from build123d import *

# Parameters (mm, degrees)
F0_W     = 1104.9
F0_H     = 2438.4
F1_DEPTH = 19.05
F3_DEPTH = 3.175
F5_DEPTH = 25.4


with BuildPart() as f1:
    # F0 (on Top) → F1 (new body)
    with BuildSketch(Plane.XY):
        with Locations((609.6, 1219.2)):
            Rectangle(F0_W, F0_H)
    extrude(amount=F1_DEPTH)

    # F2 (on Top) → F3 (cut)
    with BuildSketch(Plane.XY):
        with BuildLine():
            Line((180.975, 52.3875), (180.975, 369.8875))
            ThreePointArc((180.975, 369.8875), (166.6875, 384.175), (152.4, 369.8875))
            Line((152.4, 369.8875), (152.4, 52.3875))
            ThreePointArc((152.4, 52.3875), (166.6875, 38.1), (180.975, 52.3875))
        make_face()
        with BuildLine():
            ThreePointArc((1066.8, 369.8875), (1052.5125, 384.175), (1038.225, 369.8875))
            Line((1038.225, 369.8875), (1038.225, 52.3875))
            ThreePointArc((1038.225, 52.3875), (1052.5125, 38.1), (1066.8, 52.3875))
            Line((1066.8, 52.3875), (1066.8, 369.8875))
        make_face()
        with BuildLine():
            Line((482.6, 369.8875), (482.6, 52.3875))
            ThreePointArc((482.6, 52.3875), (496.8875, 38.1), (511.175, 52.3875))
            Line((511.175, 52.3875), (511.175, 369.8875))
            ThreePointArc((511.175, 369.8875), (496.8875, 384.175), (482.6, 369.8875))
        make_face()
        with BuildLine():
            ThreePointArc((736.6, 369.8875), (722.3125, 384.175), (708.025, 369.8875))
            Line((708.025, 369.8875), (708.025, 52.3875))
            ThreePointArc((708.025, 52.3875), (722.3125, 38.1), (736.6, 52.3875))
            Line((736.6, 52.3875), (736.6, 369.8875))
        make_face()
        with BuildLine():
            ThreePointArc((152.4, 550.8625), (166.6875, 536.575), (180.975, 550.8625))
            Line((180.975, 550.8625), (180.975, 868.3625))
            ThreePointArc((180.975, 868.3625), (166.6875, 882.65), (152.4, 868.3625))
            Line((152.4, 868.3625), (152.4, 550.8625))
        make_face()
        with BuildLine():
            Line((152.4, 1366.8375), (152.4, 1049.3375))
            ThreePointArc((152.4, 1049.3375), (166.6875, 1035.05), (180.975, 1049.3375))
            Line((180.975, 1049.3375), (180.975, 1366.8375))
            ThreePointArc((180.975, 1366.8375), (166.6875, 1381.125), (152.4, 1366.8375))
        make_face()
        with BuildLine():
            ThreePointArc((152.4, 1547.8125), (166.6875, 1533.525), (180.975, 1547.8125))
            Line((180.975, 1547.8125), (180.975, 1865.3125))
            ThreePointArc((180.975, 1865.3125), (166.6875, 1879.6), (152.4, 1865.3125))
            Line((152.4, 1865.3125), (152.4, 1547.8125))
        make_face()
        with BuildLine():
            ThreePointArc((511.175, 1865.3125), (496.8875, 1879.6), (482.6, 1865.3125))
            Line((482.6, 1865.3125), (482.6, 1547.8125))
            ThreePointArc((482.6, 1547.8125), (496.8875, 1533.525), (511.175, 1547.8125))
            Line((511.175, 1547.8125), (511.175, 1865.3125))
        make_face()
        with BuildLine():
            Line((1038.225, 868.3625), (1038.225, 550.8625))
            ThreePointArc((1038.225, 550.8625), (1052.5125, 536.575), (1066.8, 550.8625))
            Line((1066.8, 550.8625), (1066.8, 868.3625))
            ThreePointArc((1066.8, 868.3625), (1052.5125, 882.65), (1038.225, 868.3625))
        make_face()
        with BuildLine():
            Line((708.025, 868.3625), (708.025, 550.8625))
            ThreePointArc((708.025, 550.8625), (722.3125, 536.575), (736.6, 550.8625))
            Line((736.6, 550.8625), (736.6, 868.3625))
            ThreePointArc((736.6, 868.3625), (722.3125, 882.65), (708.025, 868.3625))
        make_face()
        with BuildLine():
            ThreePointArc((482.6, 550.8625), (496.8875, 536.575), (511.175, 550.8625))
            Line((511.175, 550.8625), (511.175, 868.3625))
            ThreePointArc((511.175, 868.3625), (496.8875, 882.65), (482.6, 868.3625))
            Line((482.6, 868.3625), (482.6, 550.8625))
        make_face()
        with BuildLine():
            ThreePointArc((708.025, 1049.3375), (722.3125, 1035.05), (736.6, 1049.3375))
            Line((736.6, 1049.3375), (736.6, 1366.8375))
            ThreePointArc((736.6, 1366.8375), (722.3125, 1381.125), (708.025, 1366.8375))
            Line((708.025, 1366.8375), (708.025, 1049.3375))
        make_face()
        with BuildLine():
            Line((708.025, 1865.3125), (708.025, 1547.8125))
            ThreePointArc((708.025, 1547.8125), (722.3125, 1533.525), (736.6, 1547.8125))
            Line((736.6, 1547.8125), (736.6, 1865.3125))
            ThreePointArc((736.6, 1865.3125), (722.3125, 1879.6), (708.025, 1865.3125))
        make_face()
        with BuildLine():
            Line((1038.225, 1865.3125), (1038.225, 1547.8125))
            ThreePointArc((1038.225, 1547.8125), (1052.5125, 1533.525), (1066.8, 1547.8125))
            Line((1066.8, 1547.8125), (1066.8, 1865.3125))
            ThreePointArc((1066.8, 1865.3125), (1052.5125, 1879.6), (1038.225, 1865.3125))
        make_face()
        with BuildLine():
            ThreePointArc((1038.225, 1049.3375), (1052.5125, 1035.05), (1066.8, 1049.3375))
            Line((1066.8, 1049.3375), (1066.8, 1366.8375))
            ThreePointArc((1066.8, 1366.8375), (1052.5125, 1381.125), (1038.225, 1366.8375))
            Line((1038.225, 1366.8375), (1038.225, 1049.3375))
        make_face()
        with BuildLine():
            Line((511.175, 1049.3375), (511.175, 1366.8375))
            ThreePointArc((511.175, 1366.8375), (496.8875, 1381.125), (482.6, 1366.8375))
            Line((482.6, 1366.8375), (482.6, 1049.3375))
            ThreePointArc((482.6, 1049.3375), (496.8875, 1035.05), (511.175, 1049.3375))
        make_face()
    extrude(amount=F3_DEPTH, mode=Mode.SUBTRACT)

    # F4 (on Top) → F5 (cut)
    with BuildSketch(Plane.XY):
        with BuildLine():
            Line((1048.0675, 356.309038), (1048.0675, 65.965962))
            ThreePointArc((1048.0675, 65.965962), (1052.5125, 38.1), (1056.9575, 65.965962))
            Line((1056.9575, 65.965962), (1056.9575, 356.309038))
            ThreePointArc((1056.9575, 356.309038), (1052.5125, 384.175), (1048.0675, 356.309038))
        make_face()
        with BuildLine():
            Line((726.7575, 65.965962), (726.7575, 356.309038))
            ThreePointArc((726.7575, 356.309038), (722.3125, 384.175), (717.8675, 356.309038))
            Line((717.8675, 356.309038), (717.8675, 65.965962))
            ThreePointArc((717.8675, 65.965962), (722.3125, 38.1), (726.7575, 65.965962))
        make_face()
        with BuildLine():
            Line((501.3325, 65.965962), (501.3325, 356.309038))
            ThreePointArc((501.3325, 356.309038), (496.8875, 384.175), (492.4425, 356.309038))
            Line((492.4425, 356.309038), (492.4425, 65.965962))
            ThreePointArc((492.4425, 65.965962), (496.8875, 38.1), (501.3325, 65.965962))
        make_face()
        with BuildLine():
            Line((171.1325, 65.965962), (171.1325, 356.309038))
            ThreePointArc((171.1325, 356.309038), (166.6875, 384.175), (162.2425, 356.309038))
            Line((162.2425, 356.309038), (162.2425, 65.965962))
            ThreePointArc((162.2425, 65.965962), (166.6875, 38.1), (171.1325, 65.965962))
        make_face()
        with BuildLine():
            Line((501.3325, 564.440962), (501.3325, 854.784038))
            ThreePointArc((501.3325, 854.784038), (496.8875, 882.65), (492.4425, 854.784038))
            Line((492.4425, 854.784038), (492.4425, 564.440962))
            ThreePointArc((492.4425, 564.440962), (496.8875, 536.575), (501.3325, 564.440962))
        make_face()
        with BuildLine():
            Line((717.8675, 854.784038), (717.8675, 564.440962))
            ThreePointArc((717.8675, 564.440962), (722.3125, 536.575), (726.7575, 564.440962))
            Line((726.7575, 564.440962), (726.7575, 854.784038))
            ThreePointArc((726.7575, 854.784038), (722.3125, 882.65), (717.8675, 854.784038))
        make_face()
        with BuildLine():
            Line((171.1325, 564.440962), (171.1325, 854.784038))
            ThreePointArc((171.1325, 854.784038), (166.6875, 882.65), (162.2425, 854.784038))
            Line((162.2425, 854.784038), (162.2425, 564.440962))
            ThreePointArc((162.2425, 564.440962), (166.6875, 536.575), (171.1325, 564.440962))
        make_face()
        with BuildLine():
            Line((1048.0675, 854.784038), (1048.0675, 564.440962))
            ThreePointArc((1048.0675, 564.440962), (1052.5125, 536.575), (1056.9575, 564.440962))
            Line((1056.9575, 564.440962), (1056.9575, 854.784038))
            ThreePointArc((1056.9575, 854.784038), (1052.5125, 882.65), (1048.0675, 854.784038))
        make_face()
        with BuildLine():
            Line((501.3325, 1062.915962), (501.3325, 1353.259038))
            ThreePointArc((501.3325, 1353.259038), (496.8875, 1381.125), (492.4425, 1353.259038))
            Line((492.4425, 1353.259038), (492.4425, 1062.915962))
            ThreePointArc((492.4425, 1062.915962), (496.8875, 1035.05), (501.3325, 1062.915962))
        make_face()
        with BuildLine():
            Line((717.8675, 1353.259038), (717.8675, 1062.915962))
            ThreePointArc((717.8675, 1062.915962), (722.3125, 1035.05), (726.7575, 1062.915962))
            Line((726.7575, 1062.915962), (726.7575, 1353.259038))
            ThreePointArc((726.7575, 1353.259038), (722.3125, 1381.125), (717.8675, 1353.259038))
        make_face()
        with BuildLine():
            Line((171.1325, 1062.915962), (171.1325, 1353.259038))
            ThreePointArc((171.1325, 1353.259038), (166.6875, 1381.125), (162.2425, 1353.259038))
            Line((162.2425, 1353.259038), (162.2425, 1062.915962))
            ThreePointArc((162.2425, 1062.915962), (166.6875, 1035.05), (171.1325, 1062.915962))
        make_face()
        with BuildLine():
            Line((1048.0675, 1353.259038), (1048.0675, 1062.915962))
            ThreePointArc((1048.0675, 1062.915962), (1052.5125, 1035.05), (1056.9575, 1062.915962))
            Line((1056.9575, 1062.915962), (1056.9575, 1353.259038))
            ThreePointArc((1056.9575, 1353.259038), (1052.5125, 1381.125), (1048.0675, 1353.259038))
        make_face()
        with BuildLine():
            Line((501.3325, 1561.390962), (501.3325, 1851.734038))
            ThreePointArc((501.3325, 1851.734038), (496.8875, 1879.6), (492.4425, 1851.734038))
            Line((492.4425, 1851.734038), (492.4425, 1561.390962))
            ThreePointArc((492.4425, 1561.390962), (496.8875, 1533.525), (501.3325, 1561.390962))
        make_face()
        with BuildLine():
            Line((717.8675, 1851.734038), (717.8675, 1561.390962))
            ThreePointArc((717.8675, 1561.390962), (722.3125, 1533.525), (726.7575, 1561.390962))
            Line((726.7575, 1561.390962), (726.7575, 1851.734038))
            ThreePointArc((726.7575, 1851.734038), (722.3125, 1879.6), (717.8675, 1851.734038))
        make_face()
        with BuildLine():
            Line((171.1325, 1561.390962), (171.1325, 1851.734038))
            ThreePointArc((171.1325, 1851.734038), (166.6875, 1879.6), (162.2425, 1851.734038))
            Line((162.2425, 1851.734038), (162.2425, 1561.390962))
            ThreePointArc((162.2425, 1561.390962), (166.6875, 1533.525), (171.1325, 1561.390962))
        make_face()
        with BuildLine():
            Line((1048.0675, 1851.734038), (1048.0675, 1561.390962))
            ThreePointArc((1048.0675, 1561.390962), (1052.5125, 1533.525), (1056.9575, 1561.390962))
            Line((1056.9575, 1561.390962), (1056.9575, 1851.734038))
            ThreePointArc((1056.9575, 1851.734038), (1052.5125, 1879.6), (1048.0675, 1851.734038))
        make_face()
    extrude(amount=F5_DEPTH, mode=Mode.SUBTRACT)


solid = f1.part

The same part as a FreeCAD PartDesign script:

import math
import FreeCAD as App
import Part
import Sketcher
from FreeCAD import Vector
Q = App.Units.Quantity

doc = App.newDocument("Part")
body = doc.addObject("PartDesign::Body", "Body")

# Sketch on XY plane
sketch1 = body.newObject("Sketcher::SketchObject", "Sketch")
sketch1.AttachmentSupport = (doc.getObject("XY_Plane"), [""])
sketch1.MapMode = "FlatFace"
sketch1.addGeometry([
    Part.LineSegment(Vector(57, 2438, 0), Vector(57, 0, 0)),
    Part.LineSegment(Vector(57, 0, 0), Vector(1162, 0, 0)),
    Part.LineSegment(Vector(1162, 0, 0), Vector(1162, 2438, 0)),
    Part.LineSegment(Vector(1162, 2438, 0), Vector(57, 2438, 0)),
], False)
sketch1.addConstraint([
    Sketcher.Constraint("Coincident", 0, 2, 1, 1),
    Sketcher.Constraint("Coincident", 1, 2, 2, 1),
    Sketcher.Constraint("Coincident", 2, 2, 3, 1),
    Sketcher.Constraint("Coincident", 3, 2, 0, 1),
    Sketcher.Constraint("Vertical", 0),
    Sketcher.Constraint("Horizontal", 1),
    Sketcher.Constraint("Vertical", 2),
    Sketcher.Constraint("Horizontal", 3),
    Sketcher.Constraint("PointOnObject", 0, 2, -1),
    Sketcher.Constraint("DistanceY", 0, 2, 0, 1, Q("96 in")),
    Sketcher.Constraint("DistanceX", 1, 1, 1, 2, Q("43.5 in")),
    Sketcher.Constraint("DistanceX", -1, 1, 0, 2, Q("2.25 in")),
])
pad1 = body.newObject("PartDesign::Pad", "Pad")
pad1.Profile = sketch1
pad1.Length = Q("0.75 in")

# Sketch on XY plane
sketch2 = body.newObject("Sketcher::SketchObject", "Sketch001")
sketch2.AttachmentSupport = (doc.getObject("XY_Plane"), [""])
sketch2.MapMode = "FlatFace"
sketch2.addGeometry([
    Part.LineSegment(Vector(181, 52, 0), Vector(181, 370, 0)),  # 0
    Part.ArcOfCircle(Part.Circle(Vector(167, 370, 0), Vector(0, 0, 1), 14), math.radians(0), math.radians(180)),  # 1
    Part.LineSegment(Vector(152, 370, 0), Vector(152, 52, 0)),  # 2
    Part.ArcOfCircle(Part.Circle(Vector(167, 52, 0), Vector(0, 0, 1), 14), math.radians(180), math.radians(360)),  # 3
    Part.ArcOfCircle(Part.Circle(Vector(1053, 370, 0), Vector(0, 0, 1), 14), math.radians(0), math.radians(180)),  # 4
    Part.LineSegment(Vector(1038, 370, 0), Vector(1038, 52, 0)),  # 5
    Part.ArcOfCircle(Part.Circle(Vector(1053, 52, 0), Vector(0, 0, 1), 14), math.radians(180), math.radians(360)),  # 6
    Part.LineSegment(Vector(1067, 52, 0), Vector(1067, 370, 0)),  # 7
    Part.LineSegment(Vector(483, 370, 0), Vector(483, 52, 0)),  # 8
    Part.ArcOfCircle(Part.Circle(Vector(497, 52, 0), Vector(0, 0, 1), 14), math.radians(180), math.radians(360)),  # 9
    Part.LineSegment(Vector(511, 52, 0), Vector(511, 370, 0)),  # 10
    Part.ArcOfCircle(Part.Circle(Vector(497, 370, 0), Vector(0, 0, 1), 14), math.radians(0), math.radians(180)),  # 11
    Part.ArcOfCircle(Part.Circle(Vector(722, 370, 0), Vector(0, 0, 1), 14), math.radians(0), math.radians(180)),  # 12
    Part.LineSegment(Vector(708, 370, 0), Vector(708, 52, 0)),  # 13
    Part.ArcOfCircle(Part.Circle(Vector(722, 52, 0), Vector(0, 0, 1), 14), math.radians(180), math.radians(360)),  # 14
    Part.LineSegment(Vector(737, 52, 0), Vector(737, 370, 0)),  # 15
    Part.ArcOfCircle(Part.Circle(Vector(167, 551, 0), Vector(0, 0, 1), 14), math.radians(180), math.radians(360)),  # 16
    Part.LineSegment(Vector(181, 551, 0), Vector(181, 868, 0)),  # 17
    Part.ArcOfCircle(Part.Circle(Vector(167, 868, 0), Vector(0, 0, 1), 14), math.radians(0), math.radians(180)),  # 18
    Part.LineSegment(Vector(152, 868, 0), Vector(152, 551, 0)),  # 19
    Part.LineSegment(Vector(152, 1367, 0), Vector(152, 1049, 0)),  # 20
    Part.ArcOfCircle(Part.Circle(Vector(167, 1049, 0), Vector(0, 0, 1), 14), math.radians(180), math.radians(360)),  # 21
    Part.LineSegment(Vector(181, 1049, 0), Vector(181, 1367, 0)),  # 22
    Part.ArcOfCircle(Part.Circle(Vector(167, 1367, 0), Vector(0, 0, 1), 14), math.radians(0), math.radians(180)),  # 23
    Part.ArcOfCircle(Part.Circle(Vector(167, 1548, 0), Vector(0, 0, 1), 14), math.radians(180), math.radians(360)),  # 24
    Part.LineSegment(Vector(181, 1548, 0), Vector(181, 1865, 0)),  # 25
    Part.ArcOfCircle(Part.Circle(Vector(167, 1865, 0), Vector(0, 0, 1), 14), math.radians(0), math.radians(180)),  # 26
    Part.LineSegment(Vector(152, 1865, 0), Vector(152, 1548, 0)),  # 27
    Part.ArcOfCircle(Part.Circle(Vector(497, 1865, 0), Vector(0, 0, 1), 14), math.radians(0), math.radians(180)),  # 28
    Part.LineSegment(Vector(483, 1865, 0), Vector(483, 1548, 0)),  # 29
    Part.ArcOfCircle(Part.Circle(Vector(497, 1548, 0), Vector(0, 0, 1), 14), math.radians(180), math.radians(360)),  # 30
    Part.LineSegment(Vector(511, 1548, 0), Vector(511, 1865, 0)),  # 31
    Part.LineSegment(Vector(1038, 868, 0), Vector(1038, 551, 0)),  # 32
    Part.ArcOfCircle(Part.Circle(Vector(1053, 551, 0), Vector(0, 0, 1), 14), math.radians(180), math.radians(360)),  # 33
    Part.LineSegment(Vector(1067, 551, 0), Vector(1067, 868, 0)),  # 34
    Part.ArcOfCircle(Part.Circle(Vector(1053, 868, 0), Vector(0, 0, 1), 14), math.radians(0), math.radians(180)),  # 35
    Part.LineSegment(Vector(708, 868, 0), Vector(708, 551, 0)),  # 36
    Part.ArcOfCircle(Part.Circle(Vector(722, 551, 0), Vector(0, 0, 1), 14), math.radians(180), math.radians(360)),  # 37
    Part.LineSegment(Vector(737, 551, 0), Vector(737, 868, 0)),  # 38
    Part.ArcOfCircle(Part.Circle(Vector(722, 868, 0), Vector(0, 0, 1), 14), math.radians(0), math.radians(180)),  # 39
    Part.ArcOfCircle(Part.Circle(Vector(497, 551, 0), Vector(0, 0, 1), 14), math.radians(180), math.radians(360)),  # 40
    Part.LineSegment(Vector(511, 551, 0), Vector(511, 868, 0)),  # 41
    Part.ArcOfCircle(Part.Circle(Vector(497, 868, 0), Vector(0, 0, 1), 14), math.radians(0), math.radians(180)),  # 42
    Part.LineSegment(Vector(483, 868, 0), Vector(483, 551, 0)),  # 43
    Part.ArcOfCircle(Part.Circle(Vector(722, 1049, 0), Vector(0, 0, 1), 14), math.radians(180), math.radians(360)),  # 44
    Part.LineSegment(Vector(737, 1049, 0), Vector(737, 1367, 0)),  # 45
    Part.ArcOfCircle(Part.Circle(Vector(722, 1367, 0), Vector(0, 0, 1), 14), math.radians(0), math.radians(180)),  # 46
    Part.LineSegment(Vector(708, 1367, 0), Vector(708, 1049, 0)),  # 47
    Part.LineSegment(Vector(708, 1865, 0), Vector(708, 1548, 0)),  # 48
    Part.ArcOfCircle(Part.Circle(Vector(722, 1548, 0), Vector(0, 0, 1), 14), math.radians(180), math.radians(360)),  # 49
    Part.LineSegment(Vector(737, 1548, 0), Vector(737, 1865, 0)),  # 50
    Part.ArcOfCircle(Part.Circle(Vector(722, 1865, 0), Vector(0, 0, 1), 14), math.radians(0), math.radians(180)),  # 51
    Part.LineSegment(Vector(1038, 1865, 0), Vector(1038, 1548, 0)),  # 52
    Part.ArcOfCircle(Part.Circle(Vector(1053, 1548, 0), Vector(0, 0, 1), 14), math.radians(180), math.radians(360)),  # 53
    Part.LineSegment(Vector(1067, 1548, 0), Vector(1067, 1865, 0)),  # 54
    Part.ArcOfCircle(Part.Circle(Vector(1053, 1865, 0), Vector(0, 0, 1), 14), math.radians(0), math.radians(180)),  # 55
    Part.ArcOfCircle(Part.Circle(Vector(1053, 1049, 0), Vector(0, 0, 1), 14), math.radians(180), math.radians(360)),  # 56
    Part.LineSegment(Vector(1067, 1049, 0), Vector(1067, 1367, 0)),  # 57
    Part.ArcOfCircle(Part.Circle(Vector(1053, 1367, 0), Vector(0, 0, 1), 14), math.radians(0), math.radians(180)),  # 58
    Part.LineSegment(Vector(1038, 1367, 0), Vector(1038, 1049, 0)),  # 59
    Part.LineSegment(Vector(511, 1049, 0), Vector(511, 1367, 0)),  # 60
    Part.ArcOfCircle(Part.Circle(Vector(497, 1367, 0), Vector(0, 0, 1), 14), math.radians(0), math.radians(180)),  # 61
    Part.LineSegment(Vector(483, 1367, 0), Vector(483, 1049, 0)),  # 62
    Part.ArcOfCircle(Part.Circle(Vector(497, 1049, 0), Vector(0, 0, 1), 14), math.radians(180), math.radians(360)),  # 63
], False)
sketch2.addConstraint([
    Sketcher.Constraint("Tangent", 0, 2, 1, 1),
    Sketcher.Constraint("Tangent", 1, 2, 2, 1),
    Sketcher.Constraint("Tangent", 2, 2, 3, 1),
    Sketcher.Constraint("Tangent", 3, 2, 0, 1),
    Sketcher.Constraint("Tangent", 4, 2, 5, 1),
    Sketcher.Constraint("Tangent", 5, 2, 6, 1),
    Sketcher.Constraint("Tangent", 6, 2, 7, 1),
    Sketcher.Constraint("Tangent", 7, 2, 4, 1),
    Sketcher.Constraint("Tangent", 8, 2, 9, 1),
    Sketcher.Constraint("Tangent", 9, 2, 10, 1),
    Sketcher.Constraint("Tangent", 10, 2, 11, 1),
    Sketcher.Constraint("Tangent", 11, 2, 8, 1),
    Sketcher.Constraint("Tangent", 12, 2, 13, 1),
    Sketcher.Constraint("Tangent", 13, 2, 14, 1),
    Sketcher.Constraint("Tangent", 14, 2, 15, 1),
    Sketcher.Constraint("Tangent", 15, 2, 12, 1),
    Sketcher.Constraint("Tangent", 16, 2, 17, 1),
    Sketcher.Constraint("Tangent", 17, 2, 18, 1),
    Sketcher.Constraint("Tangent", 18, 2, 19, 1),
    Sketcher.Constraint("Tangent", 19, 2, 16, 1),
    Sketcher.Constraint("Tangent", 20, 2, 21, 1),
    Sketcher.Constraint("Tangent", 21, 2, 22, 1),
    Sketcher.Constraint("Tangent", 22, 2, 23, 1),
    Sketcher.Constraint("Tangent", 23, 2, 20, 1),
    Sketcher.Constraint("Tangent", 24, 2, 25, 1),
    Sketcher.Constraint("Tangent", 25, 2, 26, 1),
    Sketcher.Constraint("Tangent", 26, 2, 27, 1),
    Sketcher.Constraint("Tangent", 27, 2, 24, 1),
    Sketcher.Constraint("Tangent", 28, 2, 29, 1),
    Sketcher.Constraint("Tangent", 29, 2, 30, 1),
    Sketcher.Constraint("Tangent", 30, 2, 31, 1),
    Sketcher.Constraint("Tangent", 31, 2, 28, 1),
    Sketcher.Constraint("Tangent", 32, 2, 33, 1),
    Sketcher.Constraint("Tangent", 33, 2, 34, 1),
    Sketcher.Constraint("Tangent", 34, 2, 35, 1),
    Sketcher.Constraint("Tangent", 35, 2, 32, 1),
    Sketcher.Constraint("Tangent", 36, 2, 37, 1),
    Sketcher.Constraint("Tangent", 37, 2, 38, 1),
    Sketcher.Constraint("Tangent", 38, 2, 39, 1),
    Sketcher.Constraint("Tangent", 39, 2, 36, 1),
    Sketcher.Constraint("Tangent", 40, 2, 41, 1),
    Sketcher.Constraint("Tangent", 41, 2, 42, 1),
    Sketcher.Constraint("Tangent", 42, 2, 43, 1),
    Sketcher.Constraint("Tangent", 43, 2, 40, 1),
    Sketcher.Constraint("Tangent", 44, 2, 45, 1),
    Sketcher.Constraint("Tangent", 45, 2, 46, 1),
    Sketcher.Constraint("Tangent", 46, 2, 47, 1),
    Sketcher.Constraint("Tangent", 47, 2, 44, 1),
    Sketcher.Constraint("Tangent", 48, 2, 49, 1),
    Sketcher.Constraint("Tangent", 49, 2, 50, 1),
    Sketcher.Constraint("Tangent", 50, 2, 51, 1),
    Sketcher.Constraint("Tangent", 51, 2, 48, 1),
    Sketcher.Constraint("Tangent", 52, 2, 53, 1),
    Sketcher.Constraint("Tangent", 53, 2, 54, 1),
    Sketcher.Constraint("Tangent", 54, 2, 55, 1),
    Sketcher.Constraint("Tangent", 55, 2, 52, 1),
    Sketcher.Constraint("Tangent", 56, 2, 57, 1),
    Sketcher.Constraint("Tangent", 57, 2, 58, 1),
    Sketcher.Constraint("Tangent", 58, 2, 59, 1),
    Sketcher.Constraint("Tangent", 59, 2, 56, 1),
    Sketcher.Constraint("Tangent", 60, 2, 61, 1),
    Sketcher.Constraint("Tangent", 61, 2, 62, 1),
    Sketcher.Constraint("Tangent", 62, 2, 63, 1),
    Sketcher.Constraint("Tangent", 63, 2, 60, 1),
    Sketcher.Constraint("Vertical", 0),
    Sketcher.Constraint("Vertical", 2),
    Sketcher.Constraint("Vertical", 5),
    Sketcher.Constraint("Vertical", 7),
    Sketcher.Constraint("Vertical", 8),
    Sketcher.Constraint("Vertical", 10),
    Sketcher.Constraint("Vertical", 13),
    Sketcher.Constraint("Vertical", 15),
    Sketcher.Constraint("Vertical", 17),
    Sketcher.Constraint("Vertical", 19),
    Sketcher.Constraint("Vertical", 20),
    Sketcher.Constraint("Vertical", 22),
    Sketcher.Constraint("Vertical", 25),
    Sketcher.Constraint("Vertical", 27),
    Sketcher.Constraint("Vertical", 29),
    Sketcher.Constraint("Vertical", 31),
    Sketcher.Constraint("Vertical", 32),
    Sketcher.Constraint("Vertical", 34),
    Sketcher.Constraint("Vertical", 36),
    Sketcher.Constraint("Vertical", 38),
    Sketcher.Constraint("Vertical", 41),
    Sketcher.Constraint("Vertical", 43),
    Sketcher.Constraint("Vertical", 45),
    Sketcher.Constraint("Vertical", 47),
    Sketcher.Constraint("Vertical", 48),
    Sketcher.Constraint("Vertical", 50),
    Sketcher.Constraint("Vertical", 52),
    Sketcher.Constraint("Vertical", 54),
    Sketcher.Constraint("Vertical", 57),
    Sketcher.Constraint("Vertical", 59),
    Sketcher.Constraint("Vertical", 60),
    Sketcher.Constraint("Vertical", 62),
    Sketcher.Constraint("Equal", 3, 4),
    Sketcher.Constraint("Equal", 6, 9),
    Sketcher.Constraint("Equal", 11, 12),
    Sketcher.Constraint("Equal", 14, 16),
    Sketcher.Constraint("Equal", 18, 21),
    Sketcher.Constraint("Equal", 23, 24),
    Sketcher.Constraint("Equal", 26, 28),
    Sketcher.Constraint("Equal", 30, 33),
    Sketcher.Constraint("Equal", 35, 37),
    Sketcher.Constraint("Equal", 39, 40),
    Sketcher.Constraint("Equal", 42, 44),
    Sketcher.Constraint("Equal", 46, 49),
    Sketcher.Constraint("Equal", 51, 53),
    Sketcher.Constraint("Equal", 55, 56),
    Sketcher.Constraint("Equal", 58, 61),
    Sketcher.Constraint("Horizontal", 1, 3, 4, 3),
    Sketcher.Constraint("Horizontal", 3, 3, 6, 3),
    Sketcher.Constraint("Horizontal", 6, 3, 9, 3),
    Sketcher.Constraint("Horizontal", 4, 3, 11, 3),
    Sketcher.Constraint("Horizontal", 11, 3, 12, 3),
    Sketcher.Constraint("Horizontal", 9, 3, 14, 3),
    Sketcher.Constraint("Horizontal", 26, 3, 28, 3),
    Sketcher.Constraint("Horizontal", 24, 3, 30, 3),
    Sketcher.Constraint("Horizontal", 16, 3, 33, 3),
    Sketcher.Constraint("Horizontal", 18, 3, 35, 3),
    Sketcher.Constraint("Horizontal", 33, 3, 37, 3),
    Sketcher.Constraint("Horizontal", 35, 3, 39, 3),
    Sketcher.Constraint("Horizontal", 37, 3, 40, 3),
    Sketcher.Constraint("Horizontal", 39, 3, 42, 3),
    Sketcher.Constraint("Horizontal", 21, 3, 44, 3),
    Sketcher.Constraint("Horizontal", 23, 3, 46, 3),
    Sketcher.Constraint("Horizontal", 30, 3, 49, 3),
    Sketcher.Constraint("Horizontal", 28, 3, 51, 3),
    Sketcher.Constraint("Horizontal", 49, 3, 53, 3),
    Sketcher.Constraint("Horizontal", 51, 3, 55, 3),
    Sketcher.Constraint("Horizontal", 44, 3, 56, 3),
    Sketcher.Constraint("Horizontal", 46, 3, 58, 3),
    Sketcher.Constraint("Horizontal", 58, 3, 61, 3),
    Sketcher.Constraint("Horizontal", 56, 3, 63, 3),
    Sketcher.Constraint("Vertical", 3, 3, 16, 3),
    Sketcher.Constraint("Vertical", 18, 3, 21, 3),
    Sketcher.Constraint("Vertical", 23, 3, 24, 3),
    Sketcher.Constraint("Vertical", 11, 3, 28, 3),
    Sketcher.Constraint("Vertical", 6, 3, 33, 3),
    Sketcher.Constraint("Vertical", 14, 3, 37, 3),
    Sketcher.Constraint("Vertical", 30, 3, 40, 3),
    Sketcher.Constraint("Vertical", 39, 3, 44, 3),
    Sketcher.Constraint("Vertical", 46, 3, 49, 3),
    Sketcher.Constraint("Vertical", 35, 3, 53, 3),
    Sketcher.Constraint("Vertical", 55, 3, 56, 3),
    Sketcher.Constraint("Vertical", 42, 3, 61, 3),
    Sketcher.Constraint("Equal", 15, 17),
    Sketcher.Constraint("Equal", 19, 20),
    Sketcher.Constraint("Equal", 22, 25),
    Sketcher.Constraint("DistanceY", 0, 1, 0, 2, Q("12.5 in")),
    Sketcher.Constraint("DistanceX", -1, 1, 1, 2, Q("6 in")),
    Sketcher.Constraint("DistanceX", -1, 1, 6, 2, Q("42 in")),
    Sketcher.Constraint("DistanceX", -1, 1, 8, 2, Q("19 in")),
    Sketcher.Constraint("DistanceX", -1, 1, 14, 2, Q("29 in")),
    Sketcher.Constraint("Radius", 1, Q("0.5625 in")),
    Sketcher.Constraint("DistanceY", -1, 1, 1, 3, Q("14.5625 in")),
    Sketcher.Constraint("DistanceY", -1, 1, 16, 3, Q("21.6875 in")),
    Sketcher.Constraint("DistanceY", -1, 1, 21, 3, Q("41.3125 in")),
    Sketcher.Constraint("DistanceY", -1, 1, 24, 3, Q("60.9375 in")),
])
pocket1 = body.newObject("PartDesign::Pocket", "Pocket")
pocket1.Profile = sketch2
pocket1.Length = Q("0.125 in")
pocket1.Reversed = True

# Sketch on XY plane
sketch3 = body.newObject("Sketcher::SketchObject", "Sketch002")
sketch3.AttachmentSupport = (doc.getObject("XY_Plane"), [""])
sketch3.MapMode = "FlatFace"
sketch3.addGeometry([
    Part.LineSegment(Vector(1048, 356, 0), Vector(1048, 66, 0)),  # 0
    Part.ArcOfCircle(Part.Circle(Vector(1053, 52, 0), Vector(0, 0, 1), 14), math.radians(108), math.radians(432)),  # 1
    Part.LineSegment(Vector(1057, 66, 0), Vector(1057, 356, 0)),  # 2
    Part.ArcOfCircle(Part.Circle(Vector(1053, 370, 0), Vector(0, 0, 1), 14), math.radians(-72), math.radians(252)),  # 3
    Part.LineSegment(Vector(727, 66, 0), Vector(727, 356, 0)),  # 4
    Part.ArcOfCircle(Part.Circle(Vector(722, 370, 0), Vector(0, 0, 1), 14), math.radians(-72), math.radians(252)),  # 5
    Part.LineSegment(Vector(718, 356, 0), Vector(718, 66, 0)),  # 6
    Part.ArcOfCircle(Part.Circle(Vector(722, 52, 0), Vector(0, 0, 1), 14), math.radians(108), math.radians(432)),  # 7
    Part.LineSegment(Vector(501, 66, 0), Vector(501, 356, 0)),  # 8
    Part.ArcOfCircle(Part.Circle(Vector(497, 370, 0), Vector(0, 0, 1), 14), math.radians(-72), math.radians(252)),  # 9
    Part.LineSegment(Vector(492, 356, 0), Vector(492, 66, 0)),  # 10
    Part.ArcOfCircle(Part.Circle(Vector(497, 52, 0), Vector(0, 0, 1), 14), math.radians(108), math.radians(432)),  # 11
    Part.LineSegment(Vector(171, 66, 0), Vector(171, 356, 0)),  # 12
    Part.ArcOfCircle(Part.Circle(Vector(167, 370, 0), Vector(0, 0, 1), 14), math.radians(-72), math.radians(252)),  # 13
    Part.LineSegment(Vector(162, 356, 0), Vector(162, 66, 0)),  # 14
    Part.ArcOfCircle(Part.Circle(Vector(167, 52, 0), Vector(0, 0, 1), 14), math.radians(108), math.radians(432)),  # 15
    Part.LineSegment(Vector(501, 564, 0), Vector(501, 855, 0)),  # 16
    Part.ArcOfCircle(Part.Circle(Vector(497, 868, 0), Vector(0, 0, 1), 14), math.radians(-72), math.radians(252)),  # 17
    Part.LineSegment(Vector(492, 855, 0), Vector(492, 564, 0)),  # 18
    Part.ArcOfCircle(Part.Circle(Vector(497, 551, 0), Vector(0, 0, 1), 14), math.radians(108), math.radians(432)),  # 19
    Part.LineSegment(Vector(718, 855, 0), Vector(718, 564, 0)),  # 20
    Part.ArcOfCircle(Part.Circle(Vector(722, 551, 0), Vector(0, 0, 1), 14), math.radians(108), math.radians(432)),  # 21
    Part.LineSegment(Vector(727, 564, 0), Vector(727, 855, 0)),  # 22
    Part.ArcOfCircle(Part.Circle(Vector(722, 868, 0), Vector(0, 0, 1), 14), math.radians(-72), math.radians(252)),  # 23
    Part.LineSegment(Vector(171, 564, 0), Vector(171, 855, 0)),  # 24
    Part.ArcOfCircle(Part.Circle(Vector(167, 868, 0), Vector(0, 0, 1), 14), math.radians(-72), math.radians(252)),  # 25
    Part.LineSegment(Vector(162, 855, 0), Vector(162, 564, 0)),  # 26
    Part.ArcOfCircle(Part.Circle(Vector(167, 551, 0), Vector(0, 0, 1), 14), math.radians(108), math.radians(432)),  # 27
    Part.LineSegment(Vector(1048, 855, 0), Vector(1048, 564, 0)),  # 28
    Part.ArcOfCircle(Part.Circle(Vector(1053, 551, 0), Vector(0, 0, 1), 14), math.radians(108), math.radians(432)),  # 29
    Part.LineSegment(Vector(1057, 564, 0), Vector(1057, 855, 0)),  # 30
    Part.ArcOfCircle(Part.Circle(Vector(1053, 868, 0), Vector(0, 0, 1), 14), math.radians(-72), math.radians(252)),  # 31
    Part.LineSegment(Vector(501, 1063, 0), Vector(501, 1353, 0)),  # 32
    Part.ArcOfCircle(Part.Circle(Vector(497, 1367, 0), Vector(0, 0, 1), 14), math.radians(-72), math.radians(252)),  # 33
    Part.LineSegment(Vector(492, 1353, 0), Vector(492, 1063, 0)),  # 34
    Part.ArcOfCircle(Part.Circle(Vector(497, 1049, 0), Vector(0, 0, 1), 14), math.radians(108), math.radians(432)),  # 35
    Part.LineSegment(Vector(718, 1353, 0), Vector(718, 1063, 0)),  # 36
    Part.ArcOfCircle(Part.Circle(Vector(722, 1049, 0), Vector(0, 0, 1), 14), math.radians(108), math.radians(432)),  # 37
    Part.LineSegment(Vector(727, 1063, 0), Vector(727, 1353, 0)),  # 38
    Part.ArcOfCircle(Part.Circle(Vector(722, 1367, 0), Vector(0, 0, 1), 14), math.radians(-72), math.radians(252)),  # 39
    Part.LineSegment(Vector(171, 1063, 0), Vector(171, 1353, 0)),  # 40
    Part.ArcOfCircle(Part.Circle(Vector(167, 1367, 0), Vector(0, 0, 1), 14), math.radians(-72), math.radians(252)),  # 41
    Part.LineSegment(Vector(162, 1353, 0), Vector(162, 1063, 0)),  # 42
    Part.ArcOfCircle(Part.Circle(Vector(167, 1049, 0), Vector(0, 0, 1), 14), math.radians(108), math.radians(432)),  # 43
    Part.LineSegment(Vector(1048, 1353, 0), Vector(1048, 1063, 0)),  # 44
    Part.ArcOfCircle(Part.Circle(Vector(1053, 1049, 0), Vector(0, 0, 1), 14), math.radians(108), math.radians(432)),  # 45
    Part.LineSegment(Vector(1057, 1063, 0), Vector(1057, 1353, 0)),  # 46
    Part.ArcOfCircle(Part.Circle(Vector(1053, 1367, 0), Vector(0, 0, 1), 14), math.radians(-72), math.radians(252)),  # 47
    Part.LineSegment(Vector(501, 1561, 0), Vector(501, 1852, 0)),  # 48
    Part.ArcOfCircle(Part.Circle(Vector(497, 1865, 0), Vector(0, 0, 1), 14), math.radians(-72), math.radians(252)),  # 49
    Part.LineSegment(Vector(492, 1852, 0), Vector(492, 1561, 0)),  # 50
    Part.ArcOfCircle(Part.Circle(Vector(497, 1548, 0), Vector(0, 0, 1), 14), math.radians(108), math.radians(432)),  # 51
    Part.LineSegment(Vector(718, 1852, 0), Vector(718, 1561, 0)),  # 52
    Part.ArcOfCircle(Part.Circle(Vector(722, 1548, 0), Vector(0, 0, 1), 14), math.radians(108), math.radians(432)),  # 53
    Part.LineSegment(Vector(727, 1561, 0), Vector(727, 1852, 0)),  # 54
    Part.ArcOfCircle(Part.Circle(Vector(722, 1865, 0), Vector(0, 0, 1), 14), math.radians(-72), math.radians(252)),  # 55
    Part.LineSegment(Vector(171, 1561, 0), Vector(171, 1852, 0)),  # 56
    Part.ArcOfCircle(Part.Circle(Vector(167, 1865, 0), Vector(0, 0, 1), 14), math.radians(-72), math.radians(252)),  # 57
    Part.LineSegment(Vector(162, 1852, 0), Vector(162, 1561, 0)),  # 58
    Part.ArcOfCircle(Part.Circle(Vector(167, 1548, 0), Vector(0, 0, 1), 14), math.radians(108), math.radians(432)),  # 59
    Part.LineSegment(Vector(1048, 1852, 0), Vector(1048, 1561, 0)),  # 60
    Part.ArcOfCircle(Part.Circle(Vector(1053, 1548, 0), Vector(0, 0, 1), 14), math.radians(108), math.radians(432)),  # 61
    Part.LineSegment(Vector(1057, 1561, 0), Vector(1057, 1852, 0)),  # 62
    Part.ArcOfCircle(Part.Circle(Vector(1053, 1865, 0), Vector(0, 0, 1), 14), math.radians(-72), math.radians(252)),  # 63
], False)
sketch3.addConstraint([
    Sketcher.Constraint("Coincident", 0, 2, 1, 1),
    Sketcher.Constraint("Coincident", 1, 2, 2, 1),
    Sketcher.Constraint("Coincident", 2, 2, 3, 1),
    Sketcher.Constraint("Coincident", 3, 2, 0, 1),
    Sketcher.Constraint("Coincident", 4, 2, 5, 1),
    Sketcher.Constraint("Coincident", 5, 2, 6, 1),
    Sketcher.Constraint("Coincident", 6, 2, 7, 1),
    Sketcher.Constraint("Coincident", 7, 2, 4, 1),
    Sketcher.Constraint("Coincident", 8, 2, 9, 1),
    Sketcher.Constraint("Coincident", 9, 2, 10, 1),
    Sketcher.Constraint("Coincident", 10, 2, 11, 1),
    Sketcher.Constraint("Coincident", 11, 2, 8, 1),
    Sketcher.Constraint("Coincident", 12, 2, 13, 1),
    Sketcher.Constraint("Coincident", 13, 2, 14, 1),
    Sketcher.Constraint("Coincident", 14, 2, 15, 1),
    Sketcher.Constraint("Coincident", 15, 2, 12, 1),
    Sketcher.Constraint("Coincident", 16, 2, 17, 1),
    Sketcher.Constraint("Coincident", 17, 2, 18, 1),
    Sketcher.Constraint("Coincident", 18, 2, 19, 1),
    Sketcher.Constraint("Coincident", 19, 2, 16, 1),
    Sketcher.Constraint("Coincident", 20, 2, 21, 1),
    Sketcher.Constraint("Coincident", 21, 2, 22, 1),
    Sketcher.Constraint("Coincident", 22, 2, 23, 1),
    Sketcher.Constraint("Coincident", 23, 2, 20, 1),
    Sketcher.Constraint("Coincident", 24, 2, 25, 1),
    Sketcher.Constraint("Coincident", 25, 2, 26, 1),
    Sketcher.Constraint("Coincident", 26, 2, 27, 1),
    Sketcher.Constraint("Coincident", 27, 2, 24, 1),
    Sketcher.Constraint("Coincident", 28, 2, 29, 1),
    Sketcher.Constraint("Coincident", 29, 2, 30, 1),
    Sketcher.Constraint("Coincident", 30, 2, 31, 1),
    Sketcher.Constraint("Coincident", 31, 2, 28, 1),
    Sketcher.Constraint("Coincident", 32, 2, 33, 1),
    Sketcher.Constraint("Coincident", 33, 2, 34, 1),
    Sketcher.Constraint("Coincident", 34, 2, 35, 1),
    Sketcher.Constraint("Coincident", 35, 2, 32, 1),
    Sketcher.Constraint("Coincident", 36, 2, 37, 1),
    Sketcher.Constraint("Coincident", 37, 2, 38, 1),
    Sketcher.Constraint("Coincident", 38, 2, 39, 1),
    Sketcher.Constraint("Coincident", 39, 2, 36, 1),
    Sketcher.Constraint("Coincident", 40, 2, 41, 1),
    Sketcher.Constraint("Coincident", 41, 2, 42, 1),
    Sketcher.Constraint("Coincident", 42, 2, 43, 1),
    Sketcher.Constraint("Coincident", 43, 2, 40, 1),
    Sketcher.Constraint("Coincident", 44, 2, 45, 1),
    Sketcher.Constraint("Coincident", 45, 2, 46, 1),
    Sketcher.Constraint("Coincident", 46, 2, 47, 1),
    Sketcher.Constraint("Coincident", 47, 2, 44, 1),
    Sketcher.Constraint("Coincident", 48, 2, 49, 1),
    Sketcher.Constraint("Coincident", 49, 2, 50, 1),
    Sketcher.Constraint("Coincident", 50, 2, 51, 1),
    Sketcher.Constraint("Coincident", 51, 2, 48, 1),
    Sketcher.Constraint("Coincident", 52, 2, 53, 1),
    Sketcher.Constraint("Coincident", 53, 2, 54, 1),
    Sketcher.Constraint("Coincident", 54, 2, 55, 1),
    Sketcher.Constraint("Coincident", 55, 2, 52, 1),
    Sketcher.Constraint("Coincident", 56, 2, 57, 1),
    Sketcher.Constraint("Coincident", 57, 2, 58, 1),
    Sketcher.Constraint("Coincident", 58, 2, 59, 1),
    Sketcher.Constraint("Coincident", 59, 2, 56, 1),
    Sketcher.Constraint("Coincident", 60, 2, 61, 1),
    Sketcher.Constraint("Coincident", 61, 2, 62, 1),
    Sketcher.Constraint("Coincident", 62, 2, 63, 1),
    Sketcher.Constraint("Coincident", 63, 2, 60, 1),
    Sketcher.Constraint("Vertical", 0),
    Sketcher.Constraint("Vertical", 2),
    Sketcher.Constraint("Vertical", 4),
    Sketcher.Constraint("Vertical", 6),
    Sketcher.Constraint("Vertical", 8),
    Sketcher.Constraint("Vertical", 10),
    Sketcher.Constraint("Vertical", 12),
    Sketcher.Constraint("Vertical", 14),
    Sketcher.Constraint("Vertical", 16),
    Sketcher.Constraint("Vertical", 18),
    Sketcher.Constraint("Vertical", 20),
    Sketcher.Constraint("Vertical", 22),
    Sketcher.Constraint("Vertical", 24),
    Sketcher.Constraint("Vertical", 26),
    Sketcher.Constraint("Vertical", 28),
    Sketcher.Constraint("Vertical", 30),
    Sketcher.Constraint("Vertical", 32),
    Sketcher.Constraint("Vertical", 34),
    Sketcher.Constraint("Vertical", 36),
    Sketcher.Constraint("Vertical", 38),
    Sketcher.Constraint("Vertical", 40),
    Sketcher.Constraint("Vertical", 42),
    Sketcher.Constraint("Vertical", 44),
    Sketcher.Constraint("Vertical", 46),
    Sketcher.Constraint("Vertical", 48),
    Sketcher.Constraint("Vertical", 50),
    Sketcher.Constraint("Vertical", 52),
    Sketcher.Constraint("Vertical", 54),
    Sketcher.Constraint("Vertical", 56),
    Sketcher.Constraint("Vertical", 58),
    Sketcher.Constraint("Vertical", 60),
    Sketcher.Constraint("Vertical", 62),
    Sketcher.Constraint("Equal", 1, 3),
    Sketcher.Constraint("Equal", 3, 5),
    Sketcher.Constraint("Equal", 5, 7),
    Sketcher.Constraint("Equal", 7, 9),
    Sketcher.Constraint("Equal", 9, 11),
    Sketcher.Constraint("Equal", 11, 13),
    Sketcher.Constraint("Equal", 13, 15),
    Sketcher.Constraint("Equal", 15, 17),
    Sketcher.Constraint("Equal", 17, 19),
    Sketcher.Constraint("Equal", 19, 21),
    Sketcher.Constraint("Equal", 21, 23),
    Sketcher.Constraint("Equal", 23, 25),
    Sketcher.Constraint("Equal", 25, 27),
    Sketcher.Constraint("Equal", 27, 29),
    Sketcher.Constraint("Equal", 29, 31),
    Sketcher.Constraint("Equal", 31, 33),
    Sketcher.Constraint("Equal", 33, 35),
    Sketcher.Constraint("Equal", 35, 37),
    Sketcher.Constraint("Equal", 37, 39),
    Sketcher.Constraint("Equal", 39, 41),
    Sketcher.Constraint("Equal", 41, 43),
    Sketcher.Constraint("Equal", 43, 45),
    Sketcher.Constraint("Equal", 45, 47),
    Sketcher.Constraint("Equal", 47, 49),
    Sketcher.Constraint("Equal", 49, 51),
    Sketcher.Constraint("Equal", 51, 53),
    Sketcher.Constraint("Equal", 53, 55),
    Sketcher.Constraint("Equal", 55, 57),
    Sketcher.Constraint("Equal", 57, 59),
    Sketcher.Constraint("Equal", 59, 61),
    Sketcher.Constraint("Equal", 61, 63),
    Sketcher.Constraint("Horizontal", 3, 3, 5, 3),
    Sketcher.Constraint("Horizontal", 1, 3, 7, 3),
    Sketcher.Constraint("Horizontal", 5, 3, 9, 3),
    Sketcher.Constraint("Horizontal", 7, 3, 11, 3),
    Sketcher.Constraint("Horizontal", 9, 3, 13, 3),
    Sketcher.Constraint("Horizontal", 11, 3, 15, 3),
    Sketcher.Constraint("Horizontal", 19, 3, 21, 3),
    Sketcher.Constraint("Horizontal", 17, 3, 23, 3),
    Sketcher.Constraint("Horizontal", 23, 3, 25, 3),
    Sketcher.Constraint("Horizontal", 21, 3, 27, 3),
    Sketcher.Constraint("Horizontal", 27, 3, 29, 3),
    Sketcher.Constraint("Horizontal", 25, 3, 31, 3),
    Sketcher.Constraint("Horizontal", 35, 3, 37, 3),
    Sketcher.Constraint("Horizontal", 33, 3, 39, 3),
    Sketcher.Constraint("Horizontal", 39, 3, 41, 3),
    Sketcher.Constraint("Horizontal", 37, 3, 43, 3),
    Sketcher.Constraint("Horizontal", 43, 3, 45, 3),
    Sketcher.Constraint("Horizontal", 41, 3, 47, 3),
    Sketcher.Constraint("Horizontal", 51, 3, 53, 3),
    Sketcher.Constraint("Horizontal", 49, 3, 55, 3),
    Sketcher.Constraint("Horizontal", 55, 3, 57, 3),
    Sketcher.Constraint("Horizontal", 53, 3, 59, 3),
    Sketcher.Constraint("Horizontal", 59, 3, 61, 3),
    Sketcher.Constraint("Horizontal", 57, 3, 63, 3),
    Sketcher.Constraint("Horizontal", 0, 2, 1, 2),
    Sketcher.Constraint("Horizontal", 2, 2, 3, 2),
    Sketcher.Constraint("Horizontal", 3, 2, 4, 2),
    Sketcher.Constraint("Horizontal", 4, 2, 5, 2),
    Sketcher.Constraint("Horizontal", 1, 2, 6, 2),
    Sketcher.Constraint("Horizontal", 5, 2, 8, 2),
    Sketcher.Constraint("Horizontal", 8, 2, 9, 2),
    Sketcher.Constraint("Horizontal", 7, 2, 10, 2),
    Sketcher.Constraint("Horizontal", 9, 2, 12, 2),
    Sketcher.Constraint("Horizontal", 12, 2, 13, 2),
    Sketcher.Constraint("Horizontal", 11, 2, 14, 2),
    Sketcher.Constraint("Horizontal", 16, 2, 17, 2),
    Sketcher.Constraint("Horizontal", 18, 2, 19, 2),
    Sketcher.Constraint("Horizontal", 19, 2, 20, 2),
    Sketcher.Constraint("Horizontal", 20, 2, 21, 2),
    Sketcher.Constraint("Horizontal", 17, 2, 22, 2),
    Sketcher.Constraint("Horizontal", 23, 2, 24, 2),
    Sketcher.Constraint("Horizontal", 24, 2, 25, 2),
    Sketcher.Constraint("Horizontal", 21, 2, 26, 2),
    Sketcher.Constraint("Horizontal", 27, 2, 28, 2),
    Sketcher.Constraint("Horizontal", 28, 2, 29, 2),
    Sketcher.Constraint("Horizontal", 25, 2, 30, 2),
    Sketcher.Constraint("Horizontal", 32, 2, 33, 2),
    Sketcher.Constraint("Horizontal", 34, 2, 35, 2),
    Sketcher.Constraint("Horizontal", 35, 2, 36, 2),
    Sketcher.Constraint("Horizontal", 36, 2, 37, 2),
    Sketcher.Constraint("Horizontal", 33, 2, 38, 2),
    Sketcher.Constraint("Horizontal", 39, 2, 40, 2),
    Sketcher.Constraint("Horizontal", 40, 2, 41, 2),
    Sketcher.Constraint("Horizontal", 37, 2, 42, 2),
    Sketcher.Constraint("Horizontal", 43, 2, 44, 2),
    Sketcher.Constraint("Horizontal", 44, 2, 45, 2),
    Sketcher.Constraint("Horizontal", 41, 2, 46, 2),
    Sketcher.Constraint("Horizontal", 48, 2, 49, 2),
    Sketcher.Constraint("Horizontal", 50, 2, 51, 2),
    Sketcher.Constraint("Horizontal", 51, 2, 52, 2),
    Sketcher.Constraint("Horizontal", 52, 2, 53, 2),
    Sketcher.Constraint("Horizontal", 49, 2, 54, 2),
    Sketcher.Constraint("Horizontal", 55, 2, 56, 2),
    Sketcher.Constraint("Horizontal", 56, 2, 57, 2),
    Sketcher.Constraint("Horizontal", 53, 2, 58, 2),
    Sketcher.Constraint("Horizontal", 59, 2, 60, 2),
    Sketcher.Constraint("Horizontal", 60, 2, 61, 2),
    Sketcher.Constraint("Horizontal", 57, 2, 62, 2),
    Sketcher.Constraint("Vertical", 11, 3, 17, 3),
    Sketcher.Constraint("Vertical", 7, 3, 21, 3),
    Sketcher.Constraint("Vertical", 15, 3, 25, 3),
    Sketcher.Constraint("Vertical", 3, 3, 29, 3),
    Sketcher.Constraint("Vertical", 19, 3, 33, 3),
    Sketcher.Constraint("Vertical", 23, 3, 37, 3),
    Sketcher.Constraint("Vertical", 27, 3, 41, 3),
    Sketcher.Constraint("Vertical", 31, 3, 45, 3),
    Sketcher.Constraint("Vertical", 35, 3, 49, 3),
    Sketcher.Constraint("Vertical", 39, 3, 53, 3),
    Sketcher.Constraint("Vertical", 43, 3, 57, 3),
    Sketcher.Constraint("Vertical", 47, 3, 61, 3),
    Sketcher.Constraint("Vertical", 11, 2, 16, 2),
    Sketcher.Constraint("Vertical", 19, 2, 32, 2),
    Sketcher.Constraint("Vertical", 35, 2, 48, 2),
    Sketcher.Constraint("Equal", 14, 16),
    Sketcher.Constraint("Equal", 30, 32),
    Sketcher.Constraint("Equal", 46, 48),
    Sketcher.Constraint("Radius", 1, Q("0.5625 in")),
    Sketcher.Constraint("DistanceX", -1, 1, 1, 3, Q("41.4375 in")),
    Sketcher.Constraint("DistanceY", -1, 1, 1, 3, Q("2.0625 in")),
    Sketcher.Constraint("DistanceY", -1, 1, 3, 3, Q("14.5625 in")),
    Sketcher.Constraint("DistanceX", -1, 1, 5, 3, Q("28.4375 in")),
    Sketcher.Constraint("DistanceX", -1, 1, 9, 3, Q("19.5625 in")),
    Sketcher.Constraint("DistanceX", -1, 1, 13, 3, Q("6.5625 in")),
    Sketcher.Constraint("DistanceY", -1, 1, 17, 3, Q("34.1875 in")),
    Sketcher.Constraint("DistanceY", -1, 1, 33, 3, Q("53.8125 in")),
    Sketcher.Constraint("DistanceY", -1, 1, 49, 3, Q("73.4375 in")),
    Sketcher.Constraint("DistanceX", -1, 1, 0, 2, Q("41.2625 in")),
])
pocket2 = body.newObject("PartDesign::Pocket", "Pocket001")
pocket2.Profile = sketch3
pocket2.Length = Q("1 in")
pocket2.Reversed = True

doc.recompute()
